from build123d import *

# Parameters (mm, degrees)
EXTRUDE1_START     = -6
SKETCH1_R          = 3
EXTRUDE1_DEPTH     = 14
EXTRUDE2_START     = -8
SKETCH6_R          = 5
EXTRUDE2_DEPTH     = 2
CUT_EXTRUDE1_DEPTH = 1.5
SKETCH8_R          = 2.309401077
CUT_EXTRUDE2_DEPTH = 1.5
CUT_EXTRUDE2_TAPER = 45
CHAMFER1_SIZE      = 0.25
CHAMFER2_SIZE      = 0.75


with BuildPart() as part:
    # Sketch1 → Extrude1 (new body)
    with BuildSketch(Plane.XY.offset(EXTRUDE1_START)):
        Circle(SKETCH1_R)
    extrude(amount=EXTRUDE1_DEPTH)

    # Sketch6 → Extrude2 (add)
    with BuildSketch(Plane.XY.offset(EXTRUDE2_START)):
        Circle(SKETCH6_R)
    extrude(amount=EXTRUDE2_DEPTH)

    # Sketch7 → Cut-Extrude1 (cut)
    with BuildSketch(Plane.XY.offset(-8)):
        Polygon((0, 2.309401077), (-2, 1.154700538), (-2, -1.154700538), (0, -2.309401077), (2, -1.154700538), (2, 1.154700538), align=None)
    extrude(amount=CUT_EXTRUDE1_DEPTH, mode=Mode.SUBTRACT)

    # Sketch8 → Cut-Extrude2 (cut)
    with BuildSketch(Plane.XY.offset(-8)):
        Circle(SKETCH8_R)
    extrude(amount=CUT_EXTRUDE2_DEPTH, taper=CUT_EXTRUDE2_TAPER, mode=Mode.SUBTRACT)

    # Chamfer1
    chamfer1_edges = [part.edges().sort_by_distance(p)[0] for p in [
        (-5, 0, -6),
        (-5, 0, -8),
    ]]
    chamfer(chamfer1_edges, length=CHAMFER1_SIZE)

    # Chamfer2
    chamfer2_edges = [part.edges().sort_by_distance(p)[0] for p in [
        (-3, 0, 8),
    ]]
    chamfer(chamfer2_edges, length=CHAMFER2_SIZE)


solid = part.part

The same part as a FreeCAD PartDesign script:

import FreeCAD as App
import Part
import Sketcher

V = App.Vector
Q = App.Units.Quantity


def edges_at(feature, points):
    """Names of the edges that pass closest to the given points."""
    edges = feature.Shape.Edges
    near = lambda p: min(range(len(edges)), key=lambda i: edges[i].distToShape(Part.Vertex(*p))[0])
    return sorted({f"Edge{near(p) + 1}" for p in points})

doc = App.newDocument("Part")
body = doc.addObject("PartDesign::Body", "Body")

# Sketch on XY plane
sketch1 = body.newObject("Sketcher::SketchObject", "Sketch")
sketch1.AttachmentSupport = (doc.getObject("XY_Plane"), [""])
sketch1.MapMode = "FlatFace"
sketch1.AttachmentOffset = App.Placement(V(0, 0, -6), App.Rotation())
sketch1.addGeometry(Part.Circle(V(0, 0, 0), V(0, 0, 1), 3), False)
sketch1.addConstraint([
    Sketcher.Constraint("Coincident", 0, 3, -1, 1),
    Sketcher.Constraint("Diameter", 0, Q("6 mm")),
])
pad1 = body.newObject("PartDesign::Pad", "Pad")
pad1.Profile = sketch1
pad1.Length = 14

# Sketch on XY plane
sketch2 = body.newObject("Sketcher::SketchObject", "Sketch001")
sketch2.AttachmentSupport = (doc.getObject("XY_Plane"), [""])
sketch2.MapMode = "FlatFace"
sketch2.AttachmentOffset = App.Placement(V(0, 0, -8), App.Rotation())
sketch2.addGeometry(Part.Circle(V(0, 0, 0), V(0, 0, 1), 5), False)
sketch2.addConstraint([
    Sketcher.Constraint("Coincident", 0, 3, -1, 1),
    Sketcher.Constraint("Diameter", 0, Q("10 mm")),
])
pad2 = body.newObject("PartDesign::Pad", "Pad001")
pad2.Profile = sketch2
pad2.Length = 2

# Sketch on XY plane
sketch3 = body.newObject("Sketcher::SketchObject", "Sketch002")
sketch3.AttachmentSupport = (doc.getObject("XY_Plane"), [""])
sketch3.MapMode = "FlatFace"
sketch3.AttachmentOffset = App.Placement(V(0, 0, -8), App.Rotation())
sketch3.addGeometry([
    Part.LineSegment(V(0, 2.309401, 0), V(-2, 1.154701, 0)),  # 0
    Part.LineSegment(V(-2, 1.154701, 0), V(-2, -1.154701, 0)),  # 1
    Part.LineSegment(V(-2, -1.154701, 0), V(0, -2.309401, 0)),  # 2
    Part.LineSegment(V(0, -2.309401, 0), V(2, -1.154701, 0)),  # 3
    Part.LineSegment(V(2, -1.154701, 0), V(2, 1.154701, 0)),  # 4
    Part.LineSegment(V(2, 1.154701, 0), V(0, 2.309401, 0)),  # 5
], False)
sketch3.addConstraint([
    Sketcher.Constraint("Coincident", 0, 2, 1, 1),
    Sketcher.Constraint("Coincident", 1, 2, 2, 1),
    Sketcher.Constraint("Coincident", 2, 2, 3, 1),
    Sketcher.Constraint("Coincident", 3, 2, 4, 1),
    Sketcher.Constraint("Coincident", 4, 2, 5, 1),
    Sketcher.Constraint("Coincident", 5, 2, 0, 1),
    Sketcher.Constraint("Vertical", 1),
    Sketcher.Constraint("Vertical", 4),
    Sketcher.Constraint("Symmetric", 0, 2, 3, 2, -1, 1),
    Sketcher.Constraint("Symmetric", 2, 2, 5, 2, -1, 1),
    Sketcher.Constraint("PointOnObject", 2, 2, -2),
    Sketcher.Constraint("Parallel", 2, 5),
    Sketcher.Constraint("Horizontal", 1, 2, 3, 2),
    Sketcher.Constraint("Angle", 0, Q("-150 deg")),
    Sketcher.Constraint("DistanceX", 0, 2, -1, 1, Q("2 mm")),
    Sketcher.Constraint("DistanceY", 1, 2, 1, 1, Q("2.309401 mm")),
])
pocket1 = body.newObject("PartDesign::Pocket", "Pocket")
pocket1.Profile = sketch3
pocket1.Length = 1.5
pocket1.Reversed = True

# Sketch on XY plane
sketch4 = body.newObject("Sketcher::SketchObject", "Sketch003")
sketch4.AttachmentSupport = (doc.getObject("XY_Plane"), [""])
sketch4.MapMode = "FlatFace"
sketch4.AttachmentOffset = App.Placement(V(0, 0, -8), App.Rotation())
sketch4.addGeometry(Part.Circle(V(0, 0, 0), V(0, 0, 1), 2.309401), False)
sketch4.addConstraint([
    Sketcher.Constraint("Coincident", 0, 3, -1, 1),
    Sketcher.Constraint("Diameter", 0, Q("4.618802 mm")),
])
pocket2 = body.newObject("PartDesign::Pocket", "Pocket001")
pocket2.Profile = sketch4
pocket2.Length = 1.5
pocket2.Reversed = True
pocket2.TaperAngle = -45
doc.recompute()

chamfer = body.newObject("PartDesign::Chamfer", "Chamfer")
chamfer.Base = (pocket2, edges_at(pocket2, [(-5, 0, -6), (-5, 0, -8)]))
chamfer.Size = 0.25
doc.recompute()

chamfer2 = body.newObject("PartDesign::Chamfer", "Chamfer001")
chamfer2.Base = (chamfer, edges_at(chamfer, [(-3, 0, 8)]))
chamfer2.Size = 0.75

doc.recompute()
